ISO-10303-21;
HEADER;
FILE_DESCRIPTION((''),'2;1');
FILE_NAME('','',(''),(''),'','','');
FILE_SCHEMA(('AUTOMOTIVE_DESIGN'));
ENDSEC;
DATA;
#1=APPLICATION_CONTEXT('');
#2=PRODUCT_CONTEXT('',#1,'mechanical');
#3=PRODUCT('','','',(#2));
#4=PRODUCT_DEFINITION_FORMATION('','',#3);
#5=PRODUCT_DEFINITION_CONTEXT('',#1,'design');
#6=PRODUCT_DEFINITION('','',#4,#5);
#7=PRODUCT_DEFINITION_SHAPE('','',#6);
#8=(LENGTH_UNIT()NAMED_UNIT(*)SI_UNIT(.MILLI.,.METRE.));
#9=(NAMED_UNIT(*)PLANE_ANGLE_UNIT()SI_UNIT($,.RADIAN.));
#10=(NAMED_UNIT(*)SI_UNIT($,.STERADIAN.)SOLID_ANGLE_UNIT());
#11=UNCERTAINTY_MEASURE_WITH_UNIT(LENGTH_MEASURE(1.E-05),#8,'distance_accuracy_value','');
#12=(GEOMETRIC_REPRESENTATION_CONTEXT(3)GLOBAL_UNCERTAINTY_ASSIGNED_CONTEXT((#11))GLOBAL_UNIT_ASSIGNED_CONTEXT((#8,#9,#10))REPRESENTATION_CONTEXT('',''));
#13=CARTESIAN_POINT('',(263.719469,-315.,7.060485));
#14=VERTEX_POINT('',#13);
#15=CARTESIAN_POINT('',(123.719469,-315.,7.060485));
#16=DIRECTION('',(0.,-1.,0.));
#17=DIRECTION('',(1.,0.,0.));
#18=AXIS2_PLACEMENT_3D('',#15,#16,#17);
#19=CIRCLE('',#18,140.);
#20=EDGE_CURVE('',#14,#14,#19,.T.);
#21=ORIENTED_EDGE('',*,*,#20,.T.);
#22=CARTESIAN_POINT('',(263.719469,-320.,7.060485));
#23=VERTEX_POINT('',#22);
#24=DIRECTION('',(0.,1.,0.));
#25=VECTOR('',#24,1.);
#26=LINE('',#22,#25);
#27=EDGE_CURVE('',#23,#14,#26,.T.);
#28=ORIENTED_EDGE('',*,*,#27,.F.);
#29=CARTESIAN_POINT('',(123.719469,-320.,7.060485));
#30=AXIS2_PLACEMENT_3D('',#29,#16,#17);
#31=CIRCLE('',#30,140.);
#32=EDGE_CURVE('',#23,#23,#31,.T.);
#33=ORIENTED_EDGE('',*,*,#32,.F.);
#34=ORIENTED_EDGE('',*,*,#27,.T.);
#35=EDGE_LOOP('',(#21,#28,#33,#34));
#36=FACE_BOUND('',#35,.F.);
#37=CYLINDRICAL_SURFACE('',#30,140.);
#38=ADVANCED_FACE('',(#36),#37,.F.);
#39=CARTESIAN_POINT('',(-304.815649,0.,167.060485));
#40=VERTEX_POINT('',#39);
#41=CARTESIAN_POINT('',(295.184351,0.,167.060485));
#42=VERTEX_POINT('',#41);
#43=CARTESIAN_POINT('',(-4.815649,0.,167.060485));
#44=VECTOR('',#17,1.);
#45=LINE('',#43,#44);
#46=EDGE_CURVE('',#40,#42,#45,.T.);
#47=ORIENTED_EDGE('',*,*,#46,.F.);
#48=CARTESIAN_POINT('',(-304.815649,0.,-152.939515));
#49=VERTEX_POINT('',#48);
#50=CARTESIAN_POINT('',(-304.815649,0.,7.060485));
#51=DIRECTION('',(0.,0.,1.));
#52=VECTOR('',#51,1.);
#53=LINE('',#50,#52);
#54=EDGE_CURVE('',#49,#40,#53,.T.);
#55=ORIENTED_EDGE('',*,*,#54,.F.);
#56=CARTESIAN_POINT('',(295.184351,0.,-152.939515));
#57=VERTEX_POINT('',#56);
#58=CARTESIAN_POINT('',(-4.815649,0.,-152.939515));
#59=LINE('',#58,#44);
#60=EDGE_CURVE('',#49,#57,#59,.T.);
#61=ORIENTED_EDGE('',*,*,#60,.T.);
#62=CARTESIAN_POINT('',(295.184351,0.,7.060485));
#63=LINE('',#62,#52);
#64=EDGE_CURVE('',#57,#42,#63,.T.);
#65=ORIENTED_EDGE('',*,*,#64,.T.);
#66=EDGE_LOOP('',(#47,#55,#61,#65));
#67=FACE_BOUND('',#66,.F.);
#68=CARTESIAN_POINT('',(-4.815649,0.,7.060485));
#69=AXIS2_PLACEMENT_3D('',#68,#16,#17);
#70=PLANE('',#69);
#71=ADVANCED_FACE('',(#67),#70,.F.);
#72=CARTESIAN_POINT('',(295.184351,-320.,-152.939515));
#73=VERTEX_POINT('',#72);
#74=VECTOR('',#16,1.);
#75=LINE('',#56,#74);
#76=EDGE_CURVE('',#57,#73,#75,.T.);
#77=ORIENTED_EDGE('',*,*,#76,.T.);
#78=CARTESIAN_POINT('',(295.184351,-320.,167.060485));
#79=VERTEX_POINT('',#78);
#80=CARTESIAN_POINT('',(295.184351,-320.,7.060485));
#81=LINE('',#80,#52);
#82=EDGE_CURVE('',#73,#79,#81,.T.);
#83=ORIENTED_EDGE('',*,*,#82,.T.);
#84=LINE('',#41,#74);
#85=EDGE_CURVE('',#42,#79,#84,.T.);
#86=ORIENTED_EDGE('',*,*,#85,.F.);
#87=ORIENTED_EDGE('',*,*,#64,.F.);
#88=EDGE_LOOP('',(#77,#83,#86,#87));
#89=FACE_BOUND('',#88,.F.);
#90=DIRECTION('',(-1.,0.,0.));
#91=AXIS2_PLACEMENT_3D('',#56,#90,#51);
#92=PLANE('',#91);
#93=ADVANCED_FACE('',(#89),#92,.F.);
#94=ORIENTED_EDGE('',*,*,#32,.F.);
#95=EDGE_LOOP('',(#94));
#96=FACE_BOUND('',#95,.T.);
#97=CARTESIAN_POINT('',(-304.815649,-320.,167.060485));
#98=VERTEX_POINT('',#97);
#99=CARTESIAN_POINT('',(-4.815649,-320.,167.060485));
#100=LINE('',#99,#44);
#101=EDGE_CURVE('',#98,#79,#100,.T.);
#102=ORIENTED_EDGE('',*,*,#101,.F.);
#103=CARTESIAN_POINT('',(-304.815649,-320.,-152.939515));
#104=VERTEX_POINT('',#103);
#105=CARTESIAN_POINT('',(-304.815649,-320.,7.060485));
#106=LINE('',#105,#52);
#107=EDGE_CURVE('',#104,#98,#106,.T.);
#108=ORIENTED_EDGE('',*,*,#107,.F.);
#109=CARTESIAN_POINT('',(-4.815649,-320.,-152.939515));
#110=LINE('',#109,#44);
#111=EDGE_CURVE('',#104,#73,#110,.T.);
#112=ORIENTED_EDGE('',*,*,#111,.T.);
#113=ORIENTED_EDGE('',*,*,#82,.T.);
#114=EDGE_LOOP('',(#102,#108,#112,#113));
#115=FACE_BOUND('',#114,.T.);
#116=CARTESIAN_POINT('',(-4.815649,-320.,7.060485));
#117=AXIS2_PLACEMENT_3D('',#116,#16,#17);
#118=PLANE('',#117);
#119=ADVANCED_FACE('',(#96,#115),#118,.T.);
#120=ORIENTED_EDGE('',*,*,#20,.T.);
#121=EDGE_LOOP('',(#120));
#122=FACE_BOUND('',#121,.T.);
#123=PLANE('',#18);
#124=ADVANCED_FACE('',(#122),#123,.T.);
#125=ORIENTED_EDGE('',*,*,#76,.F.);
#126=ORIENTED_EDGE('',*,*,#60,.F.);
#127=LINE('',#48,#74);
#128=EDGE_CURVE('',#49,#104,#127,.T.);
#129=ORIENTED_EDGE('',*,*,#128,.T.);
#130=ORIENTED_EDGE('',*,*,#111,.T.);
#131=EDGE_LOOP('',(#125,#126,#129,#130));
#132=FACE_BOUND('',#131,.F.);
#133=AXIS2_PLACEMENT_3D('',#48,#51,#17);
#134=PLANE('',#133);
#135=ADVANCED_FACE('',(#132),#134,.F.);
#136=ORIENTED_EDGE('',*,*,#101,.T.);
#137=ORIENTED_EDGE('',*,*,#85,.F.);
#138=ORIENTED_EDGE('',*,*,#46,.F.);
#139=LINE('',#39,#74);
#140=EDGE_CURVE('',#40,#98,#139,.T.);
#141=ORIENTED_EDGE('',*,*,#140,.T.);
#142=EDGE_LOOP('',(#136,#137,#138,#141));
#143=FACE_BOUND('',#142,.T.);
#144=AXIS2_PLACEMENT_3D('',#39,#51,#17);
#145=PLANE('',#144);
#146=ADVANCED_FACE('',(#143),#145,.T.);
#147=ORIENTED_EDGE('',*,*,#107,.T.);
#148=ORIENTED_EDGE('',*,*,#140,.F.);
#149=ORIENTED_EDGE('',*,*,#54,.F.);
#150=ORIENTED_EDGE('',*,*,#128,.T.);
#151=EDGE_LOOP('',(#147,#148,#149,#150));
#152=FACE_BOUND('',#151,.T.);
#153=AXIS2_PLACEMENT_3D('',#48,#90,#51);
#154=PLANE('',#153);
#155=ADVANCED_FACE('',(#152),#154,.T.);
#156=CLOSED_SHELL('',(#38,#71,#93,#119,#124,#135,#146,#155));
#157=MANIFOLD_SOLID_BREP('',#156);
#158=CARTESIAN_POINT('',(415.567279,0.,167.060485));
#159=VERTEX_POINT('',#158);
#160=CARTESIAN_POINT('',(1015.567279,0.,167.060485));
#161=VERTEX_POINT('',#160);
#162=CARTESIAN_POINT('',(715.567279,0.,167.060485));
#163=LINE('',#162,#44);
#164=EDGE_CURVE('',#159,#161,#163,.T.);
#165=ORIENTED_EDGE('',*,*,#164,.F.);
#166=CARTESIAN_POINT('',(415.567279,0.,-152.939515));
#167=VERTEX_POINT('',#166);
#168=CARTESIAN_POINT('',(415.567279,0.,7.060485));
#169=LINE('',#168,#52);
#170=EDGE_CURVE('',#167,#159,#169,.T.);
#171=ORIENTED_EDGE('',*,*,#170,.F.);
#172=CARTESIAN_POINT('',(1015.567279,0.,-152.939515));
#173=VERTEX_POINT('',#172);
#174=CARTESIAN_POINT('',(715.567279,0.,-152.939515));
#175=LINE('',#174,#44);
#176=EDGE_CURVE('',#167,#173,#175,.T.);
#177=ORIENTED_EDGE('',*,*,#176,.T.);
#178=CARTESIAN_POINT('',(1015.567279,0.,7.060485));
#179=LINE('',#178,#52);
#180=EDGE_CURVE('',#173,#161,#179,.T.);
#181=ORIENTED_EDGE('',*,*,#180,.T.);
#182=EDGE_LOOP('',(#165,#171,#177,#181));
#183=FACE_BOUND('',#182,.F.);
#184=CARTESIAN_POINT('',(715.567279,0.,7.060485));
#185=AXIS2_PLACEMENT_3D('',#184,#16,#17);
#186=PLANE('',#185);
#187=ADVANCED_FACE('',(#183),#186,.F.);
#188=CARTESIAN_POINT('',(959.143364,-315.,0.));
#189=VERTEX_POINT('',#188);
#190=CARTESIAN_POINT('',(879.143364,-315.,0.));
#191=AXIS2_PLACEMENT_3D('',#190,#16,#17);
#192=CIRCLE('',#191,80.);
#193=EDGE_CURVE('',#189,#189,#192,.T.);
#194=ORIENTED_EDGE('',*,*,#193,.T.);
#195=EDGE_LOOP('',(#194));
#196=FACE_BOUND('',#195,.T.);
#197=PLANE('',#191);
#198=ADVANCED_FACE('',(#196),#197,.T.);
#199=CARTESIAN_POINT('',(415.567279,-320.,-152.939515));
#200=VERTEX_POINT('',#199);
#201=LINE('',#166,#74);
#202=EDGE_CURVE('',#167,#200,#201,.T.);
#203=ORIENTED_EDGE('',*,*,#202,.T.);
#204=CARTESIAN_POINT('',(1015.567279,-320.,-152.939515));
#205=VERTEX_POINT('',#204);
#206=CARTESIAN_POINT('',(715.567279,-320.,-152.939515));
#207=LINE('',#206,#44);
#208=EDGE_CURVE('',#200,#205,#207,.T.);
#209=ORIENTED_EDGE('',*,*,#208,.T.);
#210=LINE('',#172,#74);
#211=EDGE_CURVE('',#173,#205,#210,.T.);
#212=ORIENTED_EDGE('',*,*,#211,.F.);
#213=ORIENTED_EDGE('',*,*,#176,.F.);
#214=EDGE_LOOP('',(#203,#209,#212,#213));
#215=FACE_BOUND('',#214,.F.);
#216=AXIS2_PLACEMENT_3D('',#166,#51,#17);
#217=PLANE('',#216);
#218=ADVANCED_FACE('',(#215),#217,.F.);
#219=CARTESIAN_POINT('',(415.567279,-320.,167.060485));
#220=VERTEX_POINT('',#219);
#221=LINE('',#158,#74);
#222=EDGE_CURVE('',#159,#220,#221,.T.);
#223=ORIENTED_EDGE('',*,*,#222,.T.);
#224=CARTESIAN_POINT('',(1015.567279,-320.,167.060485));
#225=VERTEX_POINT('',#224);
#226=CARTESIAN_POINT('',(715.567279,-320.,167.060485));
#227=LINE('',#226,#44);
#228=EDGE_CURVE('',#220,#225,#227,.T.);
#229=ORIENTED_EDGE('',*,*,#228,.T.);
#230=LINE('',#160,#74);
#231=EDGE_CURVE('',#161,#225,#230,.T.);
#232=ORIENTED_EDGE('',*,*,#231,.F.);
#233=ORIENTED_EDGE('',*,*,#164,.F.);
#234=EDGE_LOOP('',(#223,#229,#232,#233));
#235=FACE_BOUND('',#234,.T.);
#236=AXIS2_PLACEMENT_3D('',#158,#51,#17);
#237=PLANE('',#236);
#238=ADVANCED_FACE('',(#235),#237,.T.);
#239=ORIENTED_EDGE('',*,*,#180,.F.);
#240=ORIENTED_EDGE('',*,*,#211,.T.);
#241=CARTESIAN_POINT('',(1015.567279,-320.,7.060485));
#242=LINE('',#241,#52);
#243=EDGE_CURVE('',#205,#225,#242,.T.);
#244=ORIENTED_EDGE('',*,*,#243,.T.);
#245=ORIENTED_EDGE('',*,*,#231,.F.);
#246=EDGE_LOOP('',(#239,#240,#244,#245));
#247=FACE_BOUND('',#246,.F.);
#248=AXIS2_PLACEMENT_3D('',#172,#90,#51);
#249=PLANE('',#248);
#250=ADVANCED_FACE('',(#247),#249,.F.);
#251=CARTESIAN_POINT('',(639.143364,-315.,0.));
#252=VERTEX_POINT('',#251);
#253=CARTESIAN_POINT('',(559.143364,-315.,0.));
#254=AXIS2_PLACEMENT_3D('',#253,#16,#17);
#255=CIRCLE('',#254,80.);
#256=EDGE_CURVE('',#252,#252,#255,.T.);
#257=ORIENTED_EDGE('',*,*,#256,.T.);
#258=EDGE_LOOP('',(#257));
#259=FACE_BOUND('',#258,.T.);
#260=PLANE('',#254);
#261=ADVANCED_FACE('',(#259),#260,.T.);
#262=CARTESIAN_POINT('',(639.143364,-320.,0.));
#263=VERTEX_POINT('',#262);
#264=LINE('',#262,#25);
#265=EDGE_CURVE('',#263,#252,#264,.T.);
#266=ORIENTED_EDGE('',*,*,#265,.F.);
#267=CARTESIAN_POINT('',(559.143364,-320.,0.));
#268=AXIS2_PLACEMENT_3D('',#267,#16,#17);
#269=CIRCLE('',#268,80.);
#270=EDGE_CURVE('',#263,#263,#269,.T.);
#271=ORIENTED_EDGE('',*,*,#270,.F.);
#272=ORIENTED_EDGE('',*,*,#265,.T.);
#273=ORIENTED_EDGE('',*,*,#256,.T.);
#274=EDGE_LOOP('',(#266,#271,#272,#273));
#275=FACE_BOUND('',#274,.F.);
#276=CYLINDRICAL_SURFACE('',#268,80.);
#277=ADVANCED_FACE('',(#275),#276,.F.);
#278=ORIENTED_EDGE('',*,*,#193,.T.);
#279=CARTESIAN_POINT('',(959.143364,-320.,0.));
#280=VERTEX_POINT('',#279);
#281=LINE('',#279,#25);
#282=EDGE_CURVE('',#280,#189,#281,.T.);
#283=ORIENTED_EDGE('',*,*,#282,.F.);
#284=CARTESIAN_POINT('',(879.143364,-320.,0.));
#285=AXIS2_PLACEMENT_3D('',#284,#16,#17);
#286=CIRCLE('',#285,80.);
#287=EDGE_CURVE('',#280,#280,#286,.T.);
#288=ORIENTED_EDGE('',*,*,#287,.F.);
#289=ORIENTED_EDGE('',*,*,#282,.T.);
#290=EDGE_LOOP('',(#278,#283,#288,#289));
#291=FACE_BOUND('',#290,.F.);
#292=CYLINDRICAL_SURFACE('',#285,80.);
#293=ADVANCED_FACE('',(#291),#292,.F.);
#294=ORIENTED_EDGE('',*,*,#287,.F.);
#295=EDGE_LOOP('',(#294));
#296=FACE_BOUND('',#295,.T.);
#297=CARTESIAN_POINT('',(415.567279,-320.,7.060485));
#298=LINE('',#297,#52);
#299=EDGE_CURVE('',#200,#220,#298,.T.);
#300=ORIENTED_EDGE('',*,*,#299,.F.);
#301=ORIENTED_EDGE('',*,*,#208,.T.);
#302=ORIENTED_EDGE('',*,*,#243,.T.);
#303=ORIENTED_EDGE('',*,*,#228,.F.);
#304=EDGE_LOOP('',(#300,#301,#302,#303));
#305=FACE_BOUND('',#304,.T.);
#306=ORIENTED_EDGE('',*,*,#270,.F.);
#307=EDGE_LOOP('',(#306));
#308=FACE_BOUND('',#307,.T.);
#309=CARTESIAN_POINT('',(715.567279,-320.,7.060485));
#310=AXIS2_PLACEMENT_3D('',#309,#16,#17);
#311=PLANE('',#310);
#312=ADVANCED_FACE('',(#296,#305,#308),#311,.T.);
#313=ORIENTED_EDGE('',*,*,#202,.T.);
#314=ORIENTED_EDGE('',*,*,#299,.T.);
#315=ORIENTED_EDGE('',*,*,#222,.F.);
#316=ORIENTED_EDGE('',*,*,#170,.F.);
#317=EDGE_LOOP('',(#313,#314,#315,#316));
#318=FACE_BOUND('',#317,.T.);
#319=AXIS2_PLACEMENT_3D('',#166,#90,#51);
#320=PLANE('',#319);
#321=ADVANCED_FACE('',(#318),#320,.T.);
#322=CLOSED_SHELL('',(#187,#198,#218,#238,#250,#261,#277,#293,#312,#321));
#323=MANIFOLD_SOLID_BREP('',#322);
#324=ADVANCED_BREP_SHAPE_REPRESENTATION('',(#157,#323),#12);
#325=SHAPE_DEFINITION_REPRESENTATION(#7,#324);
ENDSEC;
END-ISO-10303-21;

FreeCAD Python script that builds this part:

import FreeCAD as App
import Part
import Sketcher
from FreeCAD import Vector
Q = App.Units.Quantity

doc = App.newDocument("Part")
body = doc.addObject("PartDesign::Body", "Body")
body.AllowCompound = True

# Sketch on XZ plane
sketch1 = body.newObject("Sketcher::SketchObject", "Sketch")
sketch1.AttachmentSupport = (doc.getObject("XZ_Plane"), [""])
sketch1.MapMode = "FlatFace"
sketch1.addGeometry(Part.LineSegment(Vector(-305, 167, 0), Vector(-305, -153, 0)), False)
sketch1.addGeometry(Part.LineSegment(Vector(-305, -153, 0), Vector(295, -153, 0)), False)
sketch1.addGeometry(Part.LineSegment(Vector(295, -153, 0), Vector(295, 167, 0)), False)
sketch1.addGeometry(Part.LineSegment(Vector(295, 167, 0), Vector(-305, 167, 0)), False)
sketch1.addGeometry(Part.LineSegment(Vector(416, 167, 0), Vector(416, -153, 0)), False)
sketch1.addGeometry(Part.LineSegment(Vector(416, -153, 0), Vector(1016, -153, 0)), False)
sketch1.addGeometry(Part.LineSegment(Vector(1016, -153, 0), Vector(1016, 167, 0)), False)
sketch1.addGeometry(Part.LineSegment(Vector(1016, 167, 0), Vector(416, 167, 0)), False)
sketch1.addConstraint(Sketcher.Constraint("Coincident", 0, 2, 1, 1))
sketch1.addConstraint(Sketcher.Constraint("Coincident", 1, 2, 2, 1))
sketch1.addConstraint(Sketcher.Constraint("Coincident", 2, 2, 3, 1))
sketch1.addConstraint(Sketcher.Constraint("Coincident", 3, 2, 0, 1))
sketch1.addConstraint(Sketcher.Constraint("Coincident", 4, 2, 5, 1))
sketch1.addConstraint(Sketcher.Constraint("Coincident", 5, 2, 6, 1))
sketch1.addConstraint(Sketcher.Constraint("Coincident", 6, 2, 7, 1))
sketch1.addConstraint(Sketcher.Constraint("Coincident", 7, 2, 4, 1))
sketch1.addConstraint(Sketcher.Constraint("Vertical", 0))
sketch1.addConstraint(Sketcher.Constraint("Horizontal", 1))
sketch1.addConstraint(Sketcher.Constraint("Vertical", 2))
sketch1.addConstraint(Sketcher.Constraint("Horizontal", 3))
sketch1.addConstraint(Sketcher.Constraint("Vertical", 4))
sketch1.addConstraint(Sketcher.Constraint("Horizontal", 5))
sketch1.addConstraint(Sketcher.Constraint("Vertical", 6))
sketch1.addConstraint(Sketcher.Constraint("Horizontal", 7))
sketch1.addConstraint(Sketcher.Constraint("Horizontal", 1, 2, 4, 2))
sketch1.addConstraint(Sketcher.Constraint("Horizontal", 3, 2, 6, 2))
sketch1.addConstraint(Sketcher.Constraint("Equal", 3, 5))
sketch1.addConstraint(Sketcher.Constraint("DistanceX", 1, 1, 1, 2, Q("600 mm")))
sketch1.addConstraint(Sketcher.Constraint("DistanceY", 0, 2, 0, 1, Q("320 mm")))
sketch1.addConstraint(Sketcher.Constraint("DistanceX", 0, 2, -1, 1, Q("304.815649 mm")))
sketch1.addConstraint(Sketcher.Constraint("DistanceX", -1, 1, 4, 2, Q("415.567279 mm")))
sketch1.addConstraint(Sketcher.Constraint("DistanceY", 0, 2, -1, 1, Q("152.939515 mm")))
pad1 = body.newObject("PartDesign::Pad", "Pad")
pad1.Profile = sketch1
pad1.Length = 320

# Sketch on XZ plane
sketch2 = body.newObject("Sketcher::SketchObject", "Sketch001")
sketch2.AttachmentSupport = (doc.getObject("XZ_Plane"), [""])
sketch2.MapMode = "FlatFace"
sketch2.AttachmentOffset = App.Placement(Vector(0, 0, 320), App.Rotation())
sketch2.addGeometry(Part.Circle(Vector(124, 7, 0), Vector(0, 0, 1), 140), False)
sketch2.addGeometry(Part.Circle(Vector(559, 0, 0), Vector(0, 0, 1), 80), False)
sketch2.addGeometry(Part.Circle(Vector(879, 0, 0), Vector(0, 0, 1), 80), False)
sketch2.addConstraint(Sketcher.Constraint("Equal", 1, 2))
sketch2.addConstraint(Sketcher.Constraint("PointOnObject", 1, 3, -1))
sketch2.addConstraint(Sketcher.Constraint("PointOnObject", 2, 3, -1))
sketch2.addConstraint(Sketcher.Constraint("Diameter", 0, Q("280 mm")))
sketch2.addConstraint(Sketcher.Constraint("Diameter", 1, Q("160 mm")))
sketch2.addConstraint(Sketcher.Constraint("DistanceX", 1, 3, 2, 3, Q("320 mm")))
sketch2.addConstraint(Sketcher.Constraint("DistanceX", -1, 1, 0, 3, Q("123.719469 mm")))
sketch2.addConstraint(Sketcher.Constraint("DistanceY", -1, 1, 0, 3, Q("7.060485 mm")))
sketch2.addConstraint(Sketcher.Constraint("DistanceX", -1, 1, 1, 3, Q("559.143364 mm")))
pocket1 = body.newObject("PartDesign::Pocket", "Pocket")
pocket1.Profile = sketch2
pocket1.Length = 5

doc.recompute()
